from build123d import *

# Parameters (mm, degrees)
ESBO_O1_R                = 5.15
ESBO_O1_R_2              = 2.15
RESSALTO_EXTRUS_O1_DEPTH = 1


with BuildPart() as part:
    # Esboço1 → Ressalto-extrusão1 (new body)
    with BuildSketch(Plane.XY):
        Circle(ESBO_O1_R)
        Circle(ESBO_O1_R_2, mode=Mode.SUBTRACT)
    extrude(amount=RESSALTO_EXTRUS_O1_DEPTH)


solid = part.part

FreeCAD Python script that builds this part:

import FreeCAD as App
import Part
import Sketcher
from FreeCAD import Vector

doc = App.newDocument("Part")
params = doc.addObject("Spreadsheet::Sheet", "Params")
for row, (alias, value) in enumerate([
    ("sketch1_diameter", "10.3 mm"),
    ("sketch1_diameter2", "4.3 mm"),
    ("pad1_length", "1 mm"),
], start=1):
    params.set(f"A{row}", alias)
    params.set(f"B{row}", "=" + value)
    params.setAlias(f"B{row}", alias)

body = doc.addObject("PartDesign::Body", "Body")

# Sketch on XY plane
sketch1 = doc.addObject("Sketcher::SketchObject", "Sketch")
body.addObject(sketch1)
sketch1.AttachmentSupport = (doc.XY_Plane, [""])
sketch1.MapMode = "FlatFace"
sketch1.addGeometry([
    Part.Circle(Vector(0, 0, 0), Vector(0, 0, 1), 5.15),
    Part.Circle(Vector(0, 0, 0), Vector(0, 0, 1), 2.15),
], False)
sketch1.addConstraint([
    Sketcher.Constraint("Coincident", 0, 3, -1, 1),
    Sketcher.Constraint("Coincident", 1, 3, -1, 1),
    Sketcher.Constraint("Diameter", 0, 10.3),
    Sketcher.Constraint("Diameter", 1, 4.3),
])
sketch1.setExpression("Constraints[2]", "Params.sketch1_diameter")
sketch1.setExpression("Constraints[3]", "Params.sketch1_diameter2")
pad1 = doc.addObject("PartDesign::Pad", "Pad")
body.addObject(pad1)
pad1.Profile = sketch1
pad1.setExpression("Length", "Params.pad1_length")

doc.recompute()
